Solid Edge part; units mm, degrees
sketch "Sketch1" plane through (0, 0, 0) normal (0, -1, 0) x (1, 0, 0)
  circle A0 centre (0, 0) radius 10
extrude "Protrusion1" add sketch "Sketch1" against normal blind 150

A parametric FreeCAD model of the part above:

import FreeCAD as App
import Part
import Sketcher

V = App.Vector

doc = App.newDocument("Part")
body = doc.addObject("PartDesign::Body", "Body")

sketch1 = body.newObject("Sketcher::SketchObject", "Sketch")
sketch1.AttachmentSupport = (doc.getObject("XZ_Plane"), [""])
sketch1.MapMode = "FlatFace"
sketch1.addGeometry(Part.Circle(V(0, 0, 0), V(0, 0, 1), 10), False)
sketch1.addConstraint(Sketcher.Constraint("Coincident", 0, 3, -1, 1))
sketch1.addConstraint(Sketcher.Constraint("Diameter", 0, 20.0))
pad1 = body.newObject("PartDesign::Pad", "Pad")
pad1.Profile = sketch1
pad1.Length = 150
pad1.Reversed = True

doc.recompute()
